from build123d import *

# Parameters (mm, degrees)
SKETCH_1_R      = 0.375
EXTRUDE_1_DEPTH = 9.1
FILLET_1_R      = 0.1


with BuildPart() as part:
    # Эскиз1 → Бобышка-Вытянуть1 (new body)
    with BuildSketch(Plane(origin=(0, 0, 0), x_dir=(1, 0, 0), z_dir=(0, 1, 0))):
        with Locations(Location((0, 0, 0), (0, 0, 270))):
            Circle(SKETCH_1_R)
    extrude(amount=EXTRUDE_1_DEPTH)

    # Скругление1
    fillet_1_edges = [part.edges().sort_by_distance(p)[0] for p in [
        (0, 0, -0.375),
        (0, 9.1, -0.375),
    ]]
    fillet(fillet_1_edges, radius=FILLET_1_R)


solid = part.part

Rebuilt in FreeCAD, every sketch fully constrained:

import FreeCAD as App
import Part
import Sketcher

V = App.Vector


def edges_at(feature, points):
    """Names of the edges that pass closest to the given points."""
    edges = feature.Shape.Edges
    near = lambda p: min(range(len(edges)), key=lambda i: edges[i].distToShape(Part.Vertex(*p))[0])
    return sorted({f"Edge{near(p) + 1}" for p in points})

doc = App.newDocument("Part")
params = doc.addObject("Spreadsheet::Sheet", "Params")
for row, (alias, value) in enumerate([
    ("sketch1_diameter", "0.75 mm"),
    ("pad1_length", "9.1 mm"),
    ("fillet_radius", "0.1 mm"),
], start=1):
    params.set(f"A{row}", alias)
    params.set(f"B{row}", "=" + value)
    params.setAlias(f"B{row}", alias)

body = doc.addObject("PartDesign::Body", "Body")

sketch1 = body.newObject("Sketcher::SketchObject", "Sketch")
sketch1.AttachmentSupport = (doc.getObject("XZ_Plane"), [""])
sketch1.MapMode = "FlatFace"
sketch1.addGeometry(Part.Circle(V(0, 0, 0), V(0, 0, 1), 0.38), False)
sketch1.addConstraint([
    Sketcher.Constraint("Coincident", 0, 3, -1, 1),
    Sketcher.Constraint("Diameter", 0, 0.75),
])
sketch1.setExpression("Constraints[1]", "Params.sketch1_diameter")
pad1 = body.newObject("PartDesign::Pad", "Pad")
pad1.Profile = sketch1
pad1.setExpression("Length", "Params.pad1_length")
pad1.Reversed = True
doc.recompute()

fillet = body.newObject("PartDesign::Fillet", "Fillet")
fillet.Base = (pad1, edges_at(pad1, [(0, 0, -0.375), (0, 9.1, -0.375)]))
fillet.setExpression("Radius", "Params.fillet_radius")

doc.recompute()
